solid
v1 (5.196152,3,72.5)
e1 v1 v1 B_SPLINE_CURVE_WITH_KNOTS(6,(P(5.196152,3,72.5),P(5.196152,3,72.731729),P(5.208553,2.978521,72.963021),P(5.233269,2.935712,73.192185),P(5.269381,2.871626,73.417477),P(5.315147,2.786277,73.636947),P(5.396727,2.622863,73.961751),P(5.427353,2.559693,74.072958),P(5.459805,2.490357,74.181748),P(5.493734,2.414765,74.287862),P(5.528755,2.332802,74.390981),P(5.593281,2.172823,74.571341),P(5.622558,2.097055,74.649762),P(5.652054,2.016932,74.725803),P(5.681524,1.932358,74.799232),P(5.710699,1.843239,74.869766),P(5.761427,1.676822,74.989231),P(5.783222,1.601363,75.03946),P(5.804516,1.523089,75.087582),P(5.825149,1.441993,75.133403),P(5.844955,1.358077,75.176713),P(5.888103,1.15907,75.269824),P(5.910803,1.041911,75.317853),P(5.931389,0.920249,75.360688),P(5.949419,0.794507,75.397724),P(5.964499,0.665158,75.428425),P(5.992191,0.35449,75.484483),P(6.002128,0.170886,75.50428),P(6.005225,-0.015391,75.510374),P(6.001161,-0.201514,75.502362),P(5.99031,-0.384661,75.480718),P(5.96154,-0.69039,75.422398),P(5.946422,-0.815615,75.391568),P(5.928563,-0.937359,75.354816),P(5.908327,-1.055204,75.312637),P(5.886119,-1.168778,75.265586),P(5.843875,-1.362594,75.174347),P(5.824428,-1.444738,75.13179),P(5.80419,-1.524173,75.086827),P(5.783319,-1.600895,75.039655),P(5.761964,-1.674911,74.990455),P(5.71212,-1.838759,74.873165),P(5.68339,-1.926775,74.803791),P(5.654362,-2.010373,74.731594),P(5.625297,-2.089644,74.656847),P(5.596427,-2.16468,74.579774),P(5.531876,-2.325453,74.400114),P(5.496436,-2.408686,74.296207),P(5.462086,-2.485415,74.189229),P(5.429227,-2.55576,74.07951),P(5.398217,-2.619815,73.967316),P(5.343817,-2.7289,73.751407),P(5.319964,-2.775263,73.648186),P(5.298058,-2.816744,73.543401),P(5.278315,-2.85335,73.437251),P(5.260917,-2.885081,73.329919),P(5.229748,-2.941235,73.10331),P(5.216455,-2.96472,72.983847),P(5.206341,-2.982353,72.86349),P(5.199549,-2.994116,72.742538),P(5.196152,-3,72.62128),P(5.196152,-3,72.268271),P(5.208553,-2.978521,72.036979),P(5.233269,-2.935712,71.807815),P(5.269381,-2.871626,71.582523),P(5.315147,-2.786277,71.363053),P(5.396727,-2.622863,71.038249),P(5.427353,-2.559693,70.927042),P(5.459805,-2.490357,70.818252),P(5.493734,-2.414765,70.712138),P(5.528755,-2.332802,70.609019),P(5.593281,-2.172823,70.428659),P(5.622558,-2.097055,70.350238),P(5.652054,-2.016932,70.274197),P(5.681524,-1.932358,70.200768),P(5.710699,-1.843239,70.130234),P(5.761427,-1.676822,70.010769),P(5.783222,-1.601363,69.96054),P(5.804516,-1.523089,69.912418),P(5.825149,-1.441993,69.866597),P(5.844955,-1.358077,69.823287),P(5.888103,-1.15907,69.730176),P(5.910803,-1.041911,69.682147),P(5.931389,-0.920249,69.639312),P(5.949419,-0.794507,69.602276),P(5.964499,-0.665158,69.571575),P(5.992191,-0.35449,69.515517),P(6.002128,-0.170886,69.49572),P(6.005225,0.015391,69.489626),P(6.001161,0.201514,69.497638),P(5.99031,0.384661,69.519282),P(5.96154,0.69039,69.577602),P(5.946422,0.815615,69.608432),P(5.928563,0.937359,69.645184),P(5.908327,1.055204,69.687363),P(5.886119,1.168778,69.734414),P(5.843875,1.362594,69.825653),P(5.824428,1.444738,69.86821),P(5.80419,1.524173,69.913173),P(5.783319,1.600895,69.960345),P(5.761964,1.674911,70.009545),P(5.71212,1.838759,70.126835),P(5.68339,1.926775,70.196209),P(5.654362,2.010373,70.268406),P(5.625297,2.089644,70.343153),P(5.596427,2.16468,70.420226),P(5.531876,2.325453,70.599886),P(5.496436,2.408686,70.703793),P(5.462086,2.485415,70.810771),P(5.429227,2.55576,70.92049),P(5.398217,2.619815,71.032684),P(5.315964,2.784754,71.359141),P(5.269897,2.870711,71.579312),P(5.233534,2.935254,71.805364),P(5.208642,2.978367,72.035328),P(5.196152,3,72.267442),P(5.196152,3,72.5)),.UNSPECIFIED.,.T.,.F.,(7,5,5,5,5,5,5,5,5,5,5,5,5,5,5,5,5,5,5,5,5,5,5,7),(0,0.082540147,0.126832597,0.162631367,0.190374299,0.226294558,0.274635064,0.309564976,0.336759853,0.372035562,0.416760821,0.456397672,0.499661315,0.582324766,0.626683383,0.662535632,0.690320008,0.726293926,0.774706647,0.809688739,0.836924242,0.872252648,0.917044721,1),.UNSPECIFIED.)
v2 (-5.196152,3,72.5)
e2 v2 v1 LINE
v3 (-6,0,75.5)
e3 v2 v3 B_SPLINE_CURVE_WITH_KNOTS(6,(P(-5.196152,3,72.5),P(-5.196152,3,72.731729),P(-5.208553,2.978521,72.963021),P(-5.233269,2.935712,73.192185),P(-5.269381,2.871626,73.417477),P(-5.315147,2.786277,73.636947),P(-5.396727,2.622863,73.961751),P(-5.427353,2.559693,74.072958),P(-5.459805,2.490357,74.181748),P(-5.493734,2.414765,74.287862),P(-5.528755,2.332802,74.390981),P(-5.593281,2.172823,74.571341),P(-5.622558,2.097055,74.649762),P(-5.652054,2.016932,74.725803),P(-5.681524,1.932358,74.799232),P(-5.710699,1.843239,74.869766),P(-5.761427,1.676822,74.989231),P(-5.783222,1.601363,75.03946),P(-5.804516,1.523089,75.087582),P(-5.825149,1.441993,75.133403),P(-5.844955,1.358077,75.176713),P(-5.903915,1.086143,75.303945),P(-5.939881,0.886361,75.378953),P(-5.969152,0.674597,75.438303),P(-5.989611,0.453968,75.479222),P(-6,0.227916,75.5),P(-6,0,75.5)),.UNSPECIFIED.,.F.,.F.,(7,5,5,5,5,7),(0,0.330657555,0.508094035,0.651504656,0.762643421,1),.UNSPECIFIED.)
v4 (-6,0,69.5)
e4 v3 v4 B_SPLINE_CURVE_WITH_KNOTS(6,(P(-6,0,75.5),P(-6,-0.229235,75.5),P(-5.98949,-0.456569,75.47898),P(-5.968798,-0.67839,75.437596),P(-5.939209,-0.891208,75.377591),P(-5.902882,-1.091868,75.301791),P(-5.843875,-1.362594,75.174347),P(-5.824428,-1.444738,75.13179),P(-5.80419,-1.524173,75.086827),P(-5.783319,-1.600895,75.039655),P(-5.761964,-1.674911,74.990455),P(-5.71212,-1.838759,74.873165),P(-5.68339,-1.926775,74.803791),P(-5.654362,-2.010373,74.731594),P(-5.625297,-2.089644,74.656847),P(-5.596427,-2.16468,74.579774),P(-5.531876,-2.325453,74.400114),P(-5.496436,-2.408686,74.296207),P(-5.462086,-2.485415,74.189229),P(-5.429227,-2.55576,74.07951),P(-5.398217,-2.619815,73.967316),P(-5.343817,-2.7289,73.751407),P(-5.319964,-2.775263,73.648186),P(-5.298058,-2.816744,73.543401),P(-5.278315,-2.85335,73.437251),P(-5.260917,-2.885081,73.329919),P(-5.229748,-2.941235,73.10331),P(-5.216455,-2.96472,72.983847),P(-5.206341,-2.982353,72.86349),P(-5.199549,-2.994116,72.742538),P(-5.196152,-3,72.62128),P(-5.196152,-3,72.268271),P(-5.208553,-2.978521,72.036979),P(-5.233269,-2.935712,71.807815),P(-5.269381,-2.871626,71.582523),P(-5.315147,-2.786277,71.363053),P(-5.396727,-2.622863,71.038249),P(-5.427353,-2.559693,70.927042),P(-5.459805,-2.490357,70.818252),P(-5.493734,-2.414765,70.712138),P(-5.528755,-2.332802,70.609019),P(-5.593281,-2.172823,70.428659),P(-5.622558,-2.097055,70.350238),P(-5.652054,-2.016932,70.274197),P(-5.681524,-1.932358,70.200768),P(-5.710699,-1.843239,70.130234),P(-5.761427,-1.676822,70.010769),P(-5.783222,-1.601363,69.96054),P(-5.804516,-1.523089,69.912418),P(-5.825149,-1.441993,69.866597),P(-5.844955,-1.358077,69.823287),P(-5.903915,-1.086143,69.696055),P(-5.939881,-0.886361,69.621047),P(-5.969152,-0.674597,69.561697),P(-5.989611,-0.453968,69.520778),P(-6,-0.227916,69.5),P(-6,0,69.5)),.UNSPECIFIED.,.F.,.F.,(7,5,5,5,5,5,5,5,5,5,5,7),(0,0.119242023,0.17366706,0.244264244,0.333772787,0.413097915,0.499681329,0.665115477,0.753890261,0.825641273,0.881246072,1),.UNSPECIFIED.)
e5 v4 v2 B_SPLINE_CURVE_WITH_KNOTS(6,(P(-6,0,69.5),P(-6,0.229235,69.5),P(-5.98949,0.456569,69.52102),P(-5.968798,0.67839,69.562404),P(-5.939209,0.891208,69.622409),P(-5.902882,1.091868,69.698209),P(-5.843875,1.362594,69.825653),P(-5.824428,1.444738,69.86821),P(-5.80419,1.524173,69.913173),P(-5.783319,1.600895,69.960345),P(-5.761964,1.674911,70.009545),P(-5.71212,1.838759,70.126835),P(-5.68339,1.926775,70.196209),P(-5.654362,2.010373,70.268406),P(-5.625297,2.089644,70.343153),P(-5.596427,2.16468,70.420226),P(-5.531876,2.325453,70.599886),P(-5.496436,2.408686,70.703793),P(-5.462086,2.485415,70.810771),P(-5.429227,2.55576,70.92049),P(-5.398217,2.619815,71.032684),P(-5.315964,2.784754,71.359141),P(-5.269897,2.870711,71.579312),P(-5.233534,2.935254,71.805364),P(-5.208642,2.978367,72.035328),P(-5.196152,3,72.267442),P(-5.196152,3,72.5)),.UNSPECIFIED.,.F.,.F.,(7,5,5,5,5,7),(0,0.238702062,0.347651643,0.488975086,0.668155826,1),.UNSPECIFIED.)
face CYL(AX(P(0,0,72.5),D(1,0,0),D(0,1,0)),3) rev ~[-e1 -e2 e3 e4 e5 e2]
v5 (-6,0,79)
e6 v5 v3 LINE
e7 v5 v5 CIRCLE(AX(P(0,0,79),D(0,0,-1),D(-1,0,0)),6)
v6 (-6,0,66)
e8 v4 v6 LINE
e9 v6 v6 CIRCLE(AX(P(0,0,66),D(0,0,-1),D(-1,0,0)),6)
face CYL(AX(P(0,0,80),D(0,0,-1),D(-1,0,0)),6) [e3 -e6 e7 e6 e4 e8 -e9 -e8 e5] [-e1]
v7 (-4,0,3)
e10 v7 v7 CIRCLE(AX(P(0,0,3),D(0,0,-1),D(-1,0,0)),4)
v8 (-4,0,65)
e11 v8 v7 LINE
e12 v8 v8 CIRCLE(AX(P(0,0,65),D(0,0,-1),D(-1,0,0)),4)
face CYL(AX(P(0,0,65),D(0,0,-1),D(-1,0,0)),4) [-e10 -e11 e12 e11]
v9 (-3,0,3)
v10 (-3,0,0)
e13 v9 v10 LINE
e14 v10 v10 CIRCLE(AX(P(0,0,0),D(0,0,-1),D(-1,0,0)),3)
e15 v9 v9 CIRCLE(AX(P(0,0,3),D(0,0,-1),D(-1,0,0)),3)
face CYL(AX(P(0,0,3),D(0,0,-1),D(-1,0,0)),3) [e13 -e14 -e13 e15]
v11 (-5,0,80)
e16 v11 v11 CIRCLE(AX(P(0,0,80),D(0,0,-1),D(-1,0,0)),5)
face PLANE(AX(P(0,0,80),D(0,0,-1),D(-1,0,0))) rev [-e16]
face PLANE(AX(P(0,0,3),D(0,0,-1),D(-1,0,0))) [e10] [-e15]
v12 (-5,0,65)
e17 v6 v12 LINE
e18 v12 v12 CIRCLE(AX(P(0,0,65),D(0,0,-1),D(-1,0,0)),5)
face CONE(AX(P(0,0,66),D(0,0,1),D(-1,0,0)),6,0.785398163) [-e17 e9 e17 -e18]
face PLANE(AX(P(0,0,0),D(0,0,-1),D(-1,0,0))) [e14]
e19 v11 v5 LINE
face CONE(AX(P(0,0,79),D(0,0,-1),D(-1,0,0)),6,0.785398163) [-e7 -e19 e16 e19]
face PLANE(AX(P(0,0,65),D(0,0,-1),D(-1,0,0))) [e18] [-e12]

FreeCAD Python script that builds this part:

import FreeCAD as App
import Part
import Sketcher
Q = App.Units.Quantity


def edges_at(feature, points):
    """Names of the edges that pass closest to the given points."""
    edges = feature.Shape.Edges
    near = lambda p: min(range(len(edges)), key=lambda i: edges[i].distToShape(Part.Vertex(*p))[0])
    return sorted({f"Edge{near(p) + 1}" for p in points})


def add_polygon(sketch, points):
    """Adds a closed chain of lines whose ends are joined by coincident constraints."""
    first, n = sketch.GeometryCount, len(points)
    for a, b in zip(points, points[1:] + points[:1]):
        sketch.addGeometry(Part.LineSegment(App.Vector(*a, 0), App.Vector(*b, 0)), False)
    for i in range(n):
        sketch.addConstraint(Sketcher.Constraint("Coincident", first + i, 2, first + (i + 1) % n, 1))

doc = App.newDocument("Part")
body = doc.addObject("PartDesign::Body", "Body")

sketch1 = doc.addObject("Sketcher::SketchObject", "Sketch")
body.addObject(sketch1)
sketch1.AttachmentSupport = (doc.XZ_Plane, [""])
sketch1.MapMode = "FlatFace"
add_polygon(sketch1, [(-4, 65), (-4, 3), (-3, 3), (-3, 0), (0, 0), (0, 80), (-6, 80), (-6, 65)])
sketch1.addConstraint(Sketcher.Constraint("Vertical", 0))
sketch1.addConstraint(Sketcher.Constraint("Horizontal", 1))
sketch1.addConstraint(Sketcher.Constraint("Vertical", 2))
sketch1.addConstraint(Sketcher.Constraint("Horizontal", 3))
sketch1.addConstraint(Sketcher.Constraint("Vertical", 4))
sketch1.addConstraint(Sketcher.Constraint("Horizontal", 5))
sketch1.addConstraint(Sketcher.Constraint("Vertical", 6))
sketch1.addConstraint(Sketcher.Constraint("Horizontal", 7))
sketch1.addConstraint(Sketcher.Constraint("Coincident", 3, 2, -1, 1))
sketch1.addConstraint(Sketcher.Constraint("Equal", 3, 2))
sketch1.addConstraint(Sketcher.Constraint("DistanceX", 1, 1, 1, 2, Q("1 mm")))
sketch1.addConstraint(Sketcher.Constraint("DistanceX", 3, 1, 3, 2, Q("3 mm")))
sketch1.addConstraint(Sketcher.Constraint("DistanceX", 5, 2, 5, 1, Q("6 mm")))
sketch1.addConstraint(Sketcher.Constraint("DistanceY", 0, 2, 0, 1, Q("62 mm")))
sketch1.addConstraint(Sketcher.Constraint("DistanceY", 4, 1, 4, 2, Q("80 mm")))
revolution = doc.addObject("PartDesign::Revolution", "Revolution")
body.addObject(revolution)
revolution.Profile = sketch1
revolution.ReferenceAxis = (sketch1, ["V_Axis"])
revolution.Angle = 360
doc.recompute()

chamfer = doc.addObject("PartDesign::Chamfer", "Chamfer")
body.addObject(chamfer)
chamfer.Base = (revolution, edges_at(revolution, [(6, 0, 80), (6, 0, 65)]))
chamfer.ChamferType = "Two distances"
chamfer.Size = 1
chamfer.Size2 = 1

sketch2 = doc.addObject("Sketcher::SketchObject", "Sketch001")
body.addObject(sketch2)
sketch2.AttachmentSupport = (doc.YZ_Plane, [""])
sketch2.MapMode = "FlatFace"
sketch2.addGeometry(Part.Circle(App.Vector(0, 72.5, 0), App.Vector(0, 0, 1), 3), False)
sketch2.addConstraint(Sketcher.Constraint("PointOnObject", 0, 3, -2))
sketch2.addConstraint(Sketcher.Constraint("Diameter", 0, Q("6 mm")))
sketch2.addConstraint(Sketcher.Constraint("DistanceY", -1, 1, 0, 3, Q("72.5 mm")))
pocket1 = doc.addObject("PartDesign::Pocket", "Pocket")
body.addObject(pocket1)
pocket1.Profile = sketch2
pocket1.Length = 25
pocket1.Midplane = True

doc.recompute()
